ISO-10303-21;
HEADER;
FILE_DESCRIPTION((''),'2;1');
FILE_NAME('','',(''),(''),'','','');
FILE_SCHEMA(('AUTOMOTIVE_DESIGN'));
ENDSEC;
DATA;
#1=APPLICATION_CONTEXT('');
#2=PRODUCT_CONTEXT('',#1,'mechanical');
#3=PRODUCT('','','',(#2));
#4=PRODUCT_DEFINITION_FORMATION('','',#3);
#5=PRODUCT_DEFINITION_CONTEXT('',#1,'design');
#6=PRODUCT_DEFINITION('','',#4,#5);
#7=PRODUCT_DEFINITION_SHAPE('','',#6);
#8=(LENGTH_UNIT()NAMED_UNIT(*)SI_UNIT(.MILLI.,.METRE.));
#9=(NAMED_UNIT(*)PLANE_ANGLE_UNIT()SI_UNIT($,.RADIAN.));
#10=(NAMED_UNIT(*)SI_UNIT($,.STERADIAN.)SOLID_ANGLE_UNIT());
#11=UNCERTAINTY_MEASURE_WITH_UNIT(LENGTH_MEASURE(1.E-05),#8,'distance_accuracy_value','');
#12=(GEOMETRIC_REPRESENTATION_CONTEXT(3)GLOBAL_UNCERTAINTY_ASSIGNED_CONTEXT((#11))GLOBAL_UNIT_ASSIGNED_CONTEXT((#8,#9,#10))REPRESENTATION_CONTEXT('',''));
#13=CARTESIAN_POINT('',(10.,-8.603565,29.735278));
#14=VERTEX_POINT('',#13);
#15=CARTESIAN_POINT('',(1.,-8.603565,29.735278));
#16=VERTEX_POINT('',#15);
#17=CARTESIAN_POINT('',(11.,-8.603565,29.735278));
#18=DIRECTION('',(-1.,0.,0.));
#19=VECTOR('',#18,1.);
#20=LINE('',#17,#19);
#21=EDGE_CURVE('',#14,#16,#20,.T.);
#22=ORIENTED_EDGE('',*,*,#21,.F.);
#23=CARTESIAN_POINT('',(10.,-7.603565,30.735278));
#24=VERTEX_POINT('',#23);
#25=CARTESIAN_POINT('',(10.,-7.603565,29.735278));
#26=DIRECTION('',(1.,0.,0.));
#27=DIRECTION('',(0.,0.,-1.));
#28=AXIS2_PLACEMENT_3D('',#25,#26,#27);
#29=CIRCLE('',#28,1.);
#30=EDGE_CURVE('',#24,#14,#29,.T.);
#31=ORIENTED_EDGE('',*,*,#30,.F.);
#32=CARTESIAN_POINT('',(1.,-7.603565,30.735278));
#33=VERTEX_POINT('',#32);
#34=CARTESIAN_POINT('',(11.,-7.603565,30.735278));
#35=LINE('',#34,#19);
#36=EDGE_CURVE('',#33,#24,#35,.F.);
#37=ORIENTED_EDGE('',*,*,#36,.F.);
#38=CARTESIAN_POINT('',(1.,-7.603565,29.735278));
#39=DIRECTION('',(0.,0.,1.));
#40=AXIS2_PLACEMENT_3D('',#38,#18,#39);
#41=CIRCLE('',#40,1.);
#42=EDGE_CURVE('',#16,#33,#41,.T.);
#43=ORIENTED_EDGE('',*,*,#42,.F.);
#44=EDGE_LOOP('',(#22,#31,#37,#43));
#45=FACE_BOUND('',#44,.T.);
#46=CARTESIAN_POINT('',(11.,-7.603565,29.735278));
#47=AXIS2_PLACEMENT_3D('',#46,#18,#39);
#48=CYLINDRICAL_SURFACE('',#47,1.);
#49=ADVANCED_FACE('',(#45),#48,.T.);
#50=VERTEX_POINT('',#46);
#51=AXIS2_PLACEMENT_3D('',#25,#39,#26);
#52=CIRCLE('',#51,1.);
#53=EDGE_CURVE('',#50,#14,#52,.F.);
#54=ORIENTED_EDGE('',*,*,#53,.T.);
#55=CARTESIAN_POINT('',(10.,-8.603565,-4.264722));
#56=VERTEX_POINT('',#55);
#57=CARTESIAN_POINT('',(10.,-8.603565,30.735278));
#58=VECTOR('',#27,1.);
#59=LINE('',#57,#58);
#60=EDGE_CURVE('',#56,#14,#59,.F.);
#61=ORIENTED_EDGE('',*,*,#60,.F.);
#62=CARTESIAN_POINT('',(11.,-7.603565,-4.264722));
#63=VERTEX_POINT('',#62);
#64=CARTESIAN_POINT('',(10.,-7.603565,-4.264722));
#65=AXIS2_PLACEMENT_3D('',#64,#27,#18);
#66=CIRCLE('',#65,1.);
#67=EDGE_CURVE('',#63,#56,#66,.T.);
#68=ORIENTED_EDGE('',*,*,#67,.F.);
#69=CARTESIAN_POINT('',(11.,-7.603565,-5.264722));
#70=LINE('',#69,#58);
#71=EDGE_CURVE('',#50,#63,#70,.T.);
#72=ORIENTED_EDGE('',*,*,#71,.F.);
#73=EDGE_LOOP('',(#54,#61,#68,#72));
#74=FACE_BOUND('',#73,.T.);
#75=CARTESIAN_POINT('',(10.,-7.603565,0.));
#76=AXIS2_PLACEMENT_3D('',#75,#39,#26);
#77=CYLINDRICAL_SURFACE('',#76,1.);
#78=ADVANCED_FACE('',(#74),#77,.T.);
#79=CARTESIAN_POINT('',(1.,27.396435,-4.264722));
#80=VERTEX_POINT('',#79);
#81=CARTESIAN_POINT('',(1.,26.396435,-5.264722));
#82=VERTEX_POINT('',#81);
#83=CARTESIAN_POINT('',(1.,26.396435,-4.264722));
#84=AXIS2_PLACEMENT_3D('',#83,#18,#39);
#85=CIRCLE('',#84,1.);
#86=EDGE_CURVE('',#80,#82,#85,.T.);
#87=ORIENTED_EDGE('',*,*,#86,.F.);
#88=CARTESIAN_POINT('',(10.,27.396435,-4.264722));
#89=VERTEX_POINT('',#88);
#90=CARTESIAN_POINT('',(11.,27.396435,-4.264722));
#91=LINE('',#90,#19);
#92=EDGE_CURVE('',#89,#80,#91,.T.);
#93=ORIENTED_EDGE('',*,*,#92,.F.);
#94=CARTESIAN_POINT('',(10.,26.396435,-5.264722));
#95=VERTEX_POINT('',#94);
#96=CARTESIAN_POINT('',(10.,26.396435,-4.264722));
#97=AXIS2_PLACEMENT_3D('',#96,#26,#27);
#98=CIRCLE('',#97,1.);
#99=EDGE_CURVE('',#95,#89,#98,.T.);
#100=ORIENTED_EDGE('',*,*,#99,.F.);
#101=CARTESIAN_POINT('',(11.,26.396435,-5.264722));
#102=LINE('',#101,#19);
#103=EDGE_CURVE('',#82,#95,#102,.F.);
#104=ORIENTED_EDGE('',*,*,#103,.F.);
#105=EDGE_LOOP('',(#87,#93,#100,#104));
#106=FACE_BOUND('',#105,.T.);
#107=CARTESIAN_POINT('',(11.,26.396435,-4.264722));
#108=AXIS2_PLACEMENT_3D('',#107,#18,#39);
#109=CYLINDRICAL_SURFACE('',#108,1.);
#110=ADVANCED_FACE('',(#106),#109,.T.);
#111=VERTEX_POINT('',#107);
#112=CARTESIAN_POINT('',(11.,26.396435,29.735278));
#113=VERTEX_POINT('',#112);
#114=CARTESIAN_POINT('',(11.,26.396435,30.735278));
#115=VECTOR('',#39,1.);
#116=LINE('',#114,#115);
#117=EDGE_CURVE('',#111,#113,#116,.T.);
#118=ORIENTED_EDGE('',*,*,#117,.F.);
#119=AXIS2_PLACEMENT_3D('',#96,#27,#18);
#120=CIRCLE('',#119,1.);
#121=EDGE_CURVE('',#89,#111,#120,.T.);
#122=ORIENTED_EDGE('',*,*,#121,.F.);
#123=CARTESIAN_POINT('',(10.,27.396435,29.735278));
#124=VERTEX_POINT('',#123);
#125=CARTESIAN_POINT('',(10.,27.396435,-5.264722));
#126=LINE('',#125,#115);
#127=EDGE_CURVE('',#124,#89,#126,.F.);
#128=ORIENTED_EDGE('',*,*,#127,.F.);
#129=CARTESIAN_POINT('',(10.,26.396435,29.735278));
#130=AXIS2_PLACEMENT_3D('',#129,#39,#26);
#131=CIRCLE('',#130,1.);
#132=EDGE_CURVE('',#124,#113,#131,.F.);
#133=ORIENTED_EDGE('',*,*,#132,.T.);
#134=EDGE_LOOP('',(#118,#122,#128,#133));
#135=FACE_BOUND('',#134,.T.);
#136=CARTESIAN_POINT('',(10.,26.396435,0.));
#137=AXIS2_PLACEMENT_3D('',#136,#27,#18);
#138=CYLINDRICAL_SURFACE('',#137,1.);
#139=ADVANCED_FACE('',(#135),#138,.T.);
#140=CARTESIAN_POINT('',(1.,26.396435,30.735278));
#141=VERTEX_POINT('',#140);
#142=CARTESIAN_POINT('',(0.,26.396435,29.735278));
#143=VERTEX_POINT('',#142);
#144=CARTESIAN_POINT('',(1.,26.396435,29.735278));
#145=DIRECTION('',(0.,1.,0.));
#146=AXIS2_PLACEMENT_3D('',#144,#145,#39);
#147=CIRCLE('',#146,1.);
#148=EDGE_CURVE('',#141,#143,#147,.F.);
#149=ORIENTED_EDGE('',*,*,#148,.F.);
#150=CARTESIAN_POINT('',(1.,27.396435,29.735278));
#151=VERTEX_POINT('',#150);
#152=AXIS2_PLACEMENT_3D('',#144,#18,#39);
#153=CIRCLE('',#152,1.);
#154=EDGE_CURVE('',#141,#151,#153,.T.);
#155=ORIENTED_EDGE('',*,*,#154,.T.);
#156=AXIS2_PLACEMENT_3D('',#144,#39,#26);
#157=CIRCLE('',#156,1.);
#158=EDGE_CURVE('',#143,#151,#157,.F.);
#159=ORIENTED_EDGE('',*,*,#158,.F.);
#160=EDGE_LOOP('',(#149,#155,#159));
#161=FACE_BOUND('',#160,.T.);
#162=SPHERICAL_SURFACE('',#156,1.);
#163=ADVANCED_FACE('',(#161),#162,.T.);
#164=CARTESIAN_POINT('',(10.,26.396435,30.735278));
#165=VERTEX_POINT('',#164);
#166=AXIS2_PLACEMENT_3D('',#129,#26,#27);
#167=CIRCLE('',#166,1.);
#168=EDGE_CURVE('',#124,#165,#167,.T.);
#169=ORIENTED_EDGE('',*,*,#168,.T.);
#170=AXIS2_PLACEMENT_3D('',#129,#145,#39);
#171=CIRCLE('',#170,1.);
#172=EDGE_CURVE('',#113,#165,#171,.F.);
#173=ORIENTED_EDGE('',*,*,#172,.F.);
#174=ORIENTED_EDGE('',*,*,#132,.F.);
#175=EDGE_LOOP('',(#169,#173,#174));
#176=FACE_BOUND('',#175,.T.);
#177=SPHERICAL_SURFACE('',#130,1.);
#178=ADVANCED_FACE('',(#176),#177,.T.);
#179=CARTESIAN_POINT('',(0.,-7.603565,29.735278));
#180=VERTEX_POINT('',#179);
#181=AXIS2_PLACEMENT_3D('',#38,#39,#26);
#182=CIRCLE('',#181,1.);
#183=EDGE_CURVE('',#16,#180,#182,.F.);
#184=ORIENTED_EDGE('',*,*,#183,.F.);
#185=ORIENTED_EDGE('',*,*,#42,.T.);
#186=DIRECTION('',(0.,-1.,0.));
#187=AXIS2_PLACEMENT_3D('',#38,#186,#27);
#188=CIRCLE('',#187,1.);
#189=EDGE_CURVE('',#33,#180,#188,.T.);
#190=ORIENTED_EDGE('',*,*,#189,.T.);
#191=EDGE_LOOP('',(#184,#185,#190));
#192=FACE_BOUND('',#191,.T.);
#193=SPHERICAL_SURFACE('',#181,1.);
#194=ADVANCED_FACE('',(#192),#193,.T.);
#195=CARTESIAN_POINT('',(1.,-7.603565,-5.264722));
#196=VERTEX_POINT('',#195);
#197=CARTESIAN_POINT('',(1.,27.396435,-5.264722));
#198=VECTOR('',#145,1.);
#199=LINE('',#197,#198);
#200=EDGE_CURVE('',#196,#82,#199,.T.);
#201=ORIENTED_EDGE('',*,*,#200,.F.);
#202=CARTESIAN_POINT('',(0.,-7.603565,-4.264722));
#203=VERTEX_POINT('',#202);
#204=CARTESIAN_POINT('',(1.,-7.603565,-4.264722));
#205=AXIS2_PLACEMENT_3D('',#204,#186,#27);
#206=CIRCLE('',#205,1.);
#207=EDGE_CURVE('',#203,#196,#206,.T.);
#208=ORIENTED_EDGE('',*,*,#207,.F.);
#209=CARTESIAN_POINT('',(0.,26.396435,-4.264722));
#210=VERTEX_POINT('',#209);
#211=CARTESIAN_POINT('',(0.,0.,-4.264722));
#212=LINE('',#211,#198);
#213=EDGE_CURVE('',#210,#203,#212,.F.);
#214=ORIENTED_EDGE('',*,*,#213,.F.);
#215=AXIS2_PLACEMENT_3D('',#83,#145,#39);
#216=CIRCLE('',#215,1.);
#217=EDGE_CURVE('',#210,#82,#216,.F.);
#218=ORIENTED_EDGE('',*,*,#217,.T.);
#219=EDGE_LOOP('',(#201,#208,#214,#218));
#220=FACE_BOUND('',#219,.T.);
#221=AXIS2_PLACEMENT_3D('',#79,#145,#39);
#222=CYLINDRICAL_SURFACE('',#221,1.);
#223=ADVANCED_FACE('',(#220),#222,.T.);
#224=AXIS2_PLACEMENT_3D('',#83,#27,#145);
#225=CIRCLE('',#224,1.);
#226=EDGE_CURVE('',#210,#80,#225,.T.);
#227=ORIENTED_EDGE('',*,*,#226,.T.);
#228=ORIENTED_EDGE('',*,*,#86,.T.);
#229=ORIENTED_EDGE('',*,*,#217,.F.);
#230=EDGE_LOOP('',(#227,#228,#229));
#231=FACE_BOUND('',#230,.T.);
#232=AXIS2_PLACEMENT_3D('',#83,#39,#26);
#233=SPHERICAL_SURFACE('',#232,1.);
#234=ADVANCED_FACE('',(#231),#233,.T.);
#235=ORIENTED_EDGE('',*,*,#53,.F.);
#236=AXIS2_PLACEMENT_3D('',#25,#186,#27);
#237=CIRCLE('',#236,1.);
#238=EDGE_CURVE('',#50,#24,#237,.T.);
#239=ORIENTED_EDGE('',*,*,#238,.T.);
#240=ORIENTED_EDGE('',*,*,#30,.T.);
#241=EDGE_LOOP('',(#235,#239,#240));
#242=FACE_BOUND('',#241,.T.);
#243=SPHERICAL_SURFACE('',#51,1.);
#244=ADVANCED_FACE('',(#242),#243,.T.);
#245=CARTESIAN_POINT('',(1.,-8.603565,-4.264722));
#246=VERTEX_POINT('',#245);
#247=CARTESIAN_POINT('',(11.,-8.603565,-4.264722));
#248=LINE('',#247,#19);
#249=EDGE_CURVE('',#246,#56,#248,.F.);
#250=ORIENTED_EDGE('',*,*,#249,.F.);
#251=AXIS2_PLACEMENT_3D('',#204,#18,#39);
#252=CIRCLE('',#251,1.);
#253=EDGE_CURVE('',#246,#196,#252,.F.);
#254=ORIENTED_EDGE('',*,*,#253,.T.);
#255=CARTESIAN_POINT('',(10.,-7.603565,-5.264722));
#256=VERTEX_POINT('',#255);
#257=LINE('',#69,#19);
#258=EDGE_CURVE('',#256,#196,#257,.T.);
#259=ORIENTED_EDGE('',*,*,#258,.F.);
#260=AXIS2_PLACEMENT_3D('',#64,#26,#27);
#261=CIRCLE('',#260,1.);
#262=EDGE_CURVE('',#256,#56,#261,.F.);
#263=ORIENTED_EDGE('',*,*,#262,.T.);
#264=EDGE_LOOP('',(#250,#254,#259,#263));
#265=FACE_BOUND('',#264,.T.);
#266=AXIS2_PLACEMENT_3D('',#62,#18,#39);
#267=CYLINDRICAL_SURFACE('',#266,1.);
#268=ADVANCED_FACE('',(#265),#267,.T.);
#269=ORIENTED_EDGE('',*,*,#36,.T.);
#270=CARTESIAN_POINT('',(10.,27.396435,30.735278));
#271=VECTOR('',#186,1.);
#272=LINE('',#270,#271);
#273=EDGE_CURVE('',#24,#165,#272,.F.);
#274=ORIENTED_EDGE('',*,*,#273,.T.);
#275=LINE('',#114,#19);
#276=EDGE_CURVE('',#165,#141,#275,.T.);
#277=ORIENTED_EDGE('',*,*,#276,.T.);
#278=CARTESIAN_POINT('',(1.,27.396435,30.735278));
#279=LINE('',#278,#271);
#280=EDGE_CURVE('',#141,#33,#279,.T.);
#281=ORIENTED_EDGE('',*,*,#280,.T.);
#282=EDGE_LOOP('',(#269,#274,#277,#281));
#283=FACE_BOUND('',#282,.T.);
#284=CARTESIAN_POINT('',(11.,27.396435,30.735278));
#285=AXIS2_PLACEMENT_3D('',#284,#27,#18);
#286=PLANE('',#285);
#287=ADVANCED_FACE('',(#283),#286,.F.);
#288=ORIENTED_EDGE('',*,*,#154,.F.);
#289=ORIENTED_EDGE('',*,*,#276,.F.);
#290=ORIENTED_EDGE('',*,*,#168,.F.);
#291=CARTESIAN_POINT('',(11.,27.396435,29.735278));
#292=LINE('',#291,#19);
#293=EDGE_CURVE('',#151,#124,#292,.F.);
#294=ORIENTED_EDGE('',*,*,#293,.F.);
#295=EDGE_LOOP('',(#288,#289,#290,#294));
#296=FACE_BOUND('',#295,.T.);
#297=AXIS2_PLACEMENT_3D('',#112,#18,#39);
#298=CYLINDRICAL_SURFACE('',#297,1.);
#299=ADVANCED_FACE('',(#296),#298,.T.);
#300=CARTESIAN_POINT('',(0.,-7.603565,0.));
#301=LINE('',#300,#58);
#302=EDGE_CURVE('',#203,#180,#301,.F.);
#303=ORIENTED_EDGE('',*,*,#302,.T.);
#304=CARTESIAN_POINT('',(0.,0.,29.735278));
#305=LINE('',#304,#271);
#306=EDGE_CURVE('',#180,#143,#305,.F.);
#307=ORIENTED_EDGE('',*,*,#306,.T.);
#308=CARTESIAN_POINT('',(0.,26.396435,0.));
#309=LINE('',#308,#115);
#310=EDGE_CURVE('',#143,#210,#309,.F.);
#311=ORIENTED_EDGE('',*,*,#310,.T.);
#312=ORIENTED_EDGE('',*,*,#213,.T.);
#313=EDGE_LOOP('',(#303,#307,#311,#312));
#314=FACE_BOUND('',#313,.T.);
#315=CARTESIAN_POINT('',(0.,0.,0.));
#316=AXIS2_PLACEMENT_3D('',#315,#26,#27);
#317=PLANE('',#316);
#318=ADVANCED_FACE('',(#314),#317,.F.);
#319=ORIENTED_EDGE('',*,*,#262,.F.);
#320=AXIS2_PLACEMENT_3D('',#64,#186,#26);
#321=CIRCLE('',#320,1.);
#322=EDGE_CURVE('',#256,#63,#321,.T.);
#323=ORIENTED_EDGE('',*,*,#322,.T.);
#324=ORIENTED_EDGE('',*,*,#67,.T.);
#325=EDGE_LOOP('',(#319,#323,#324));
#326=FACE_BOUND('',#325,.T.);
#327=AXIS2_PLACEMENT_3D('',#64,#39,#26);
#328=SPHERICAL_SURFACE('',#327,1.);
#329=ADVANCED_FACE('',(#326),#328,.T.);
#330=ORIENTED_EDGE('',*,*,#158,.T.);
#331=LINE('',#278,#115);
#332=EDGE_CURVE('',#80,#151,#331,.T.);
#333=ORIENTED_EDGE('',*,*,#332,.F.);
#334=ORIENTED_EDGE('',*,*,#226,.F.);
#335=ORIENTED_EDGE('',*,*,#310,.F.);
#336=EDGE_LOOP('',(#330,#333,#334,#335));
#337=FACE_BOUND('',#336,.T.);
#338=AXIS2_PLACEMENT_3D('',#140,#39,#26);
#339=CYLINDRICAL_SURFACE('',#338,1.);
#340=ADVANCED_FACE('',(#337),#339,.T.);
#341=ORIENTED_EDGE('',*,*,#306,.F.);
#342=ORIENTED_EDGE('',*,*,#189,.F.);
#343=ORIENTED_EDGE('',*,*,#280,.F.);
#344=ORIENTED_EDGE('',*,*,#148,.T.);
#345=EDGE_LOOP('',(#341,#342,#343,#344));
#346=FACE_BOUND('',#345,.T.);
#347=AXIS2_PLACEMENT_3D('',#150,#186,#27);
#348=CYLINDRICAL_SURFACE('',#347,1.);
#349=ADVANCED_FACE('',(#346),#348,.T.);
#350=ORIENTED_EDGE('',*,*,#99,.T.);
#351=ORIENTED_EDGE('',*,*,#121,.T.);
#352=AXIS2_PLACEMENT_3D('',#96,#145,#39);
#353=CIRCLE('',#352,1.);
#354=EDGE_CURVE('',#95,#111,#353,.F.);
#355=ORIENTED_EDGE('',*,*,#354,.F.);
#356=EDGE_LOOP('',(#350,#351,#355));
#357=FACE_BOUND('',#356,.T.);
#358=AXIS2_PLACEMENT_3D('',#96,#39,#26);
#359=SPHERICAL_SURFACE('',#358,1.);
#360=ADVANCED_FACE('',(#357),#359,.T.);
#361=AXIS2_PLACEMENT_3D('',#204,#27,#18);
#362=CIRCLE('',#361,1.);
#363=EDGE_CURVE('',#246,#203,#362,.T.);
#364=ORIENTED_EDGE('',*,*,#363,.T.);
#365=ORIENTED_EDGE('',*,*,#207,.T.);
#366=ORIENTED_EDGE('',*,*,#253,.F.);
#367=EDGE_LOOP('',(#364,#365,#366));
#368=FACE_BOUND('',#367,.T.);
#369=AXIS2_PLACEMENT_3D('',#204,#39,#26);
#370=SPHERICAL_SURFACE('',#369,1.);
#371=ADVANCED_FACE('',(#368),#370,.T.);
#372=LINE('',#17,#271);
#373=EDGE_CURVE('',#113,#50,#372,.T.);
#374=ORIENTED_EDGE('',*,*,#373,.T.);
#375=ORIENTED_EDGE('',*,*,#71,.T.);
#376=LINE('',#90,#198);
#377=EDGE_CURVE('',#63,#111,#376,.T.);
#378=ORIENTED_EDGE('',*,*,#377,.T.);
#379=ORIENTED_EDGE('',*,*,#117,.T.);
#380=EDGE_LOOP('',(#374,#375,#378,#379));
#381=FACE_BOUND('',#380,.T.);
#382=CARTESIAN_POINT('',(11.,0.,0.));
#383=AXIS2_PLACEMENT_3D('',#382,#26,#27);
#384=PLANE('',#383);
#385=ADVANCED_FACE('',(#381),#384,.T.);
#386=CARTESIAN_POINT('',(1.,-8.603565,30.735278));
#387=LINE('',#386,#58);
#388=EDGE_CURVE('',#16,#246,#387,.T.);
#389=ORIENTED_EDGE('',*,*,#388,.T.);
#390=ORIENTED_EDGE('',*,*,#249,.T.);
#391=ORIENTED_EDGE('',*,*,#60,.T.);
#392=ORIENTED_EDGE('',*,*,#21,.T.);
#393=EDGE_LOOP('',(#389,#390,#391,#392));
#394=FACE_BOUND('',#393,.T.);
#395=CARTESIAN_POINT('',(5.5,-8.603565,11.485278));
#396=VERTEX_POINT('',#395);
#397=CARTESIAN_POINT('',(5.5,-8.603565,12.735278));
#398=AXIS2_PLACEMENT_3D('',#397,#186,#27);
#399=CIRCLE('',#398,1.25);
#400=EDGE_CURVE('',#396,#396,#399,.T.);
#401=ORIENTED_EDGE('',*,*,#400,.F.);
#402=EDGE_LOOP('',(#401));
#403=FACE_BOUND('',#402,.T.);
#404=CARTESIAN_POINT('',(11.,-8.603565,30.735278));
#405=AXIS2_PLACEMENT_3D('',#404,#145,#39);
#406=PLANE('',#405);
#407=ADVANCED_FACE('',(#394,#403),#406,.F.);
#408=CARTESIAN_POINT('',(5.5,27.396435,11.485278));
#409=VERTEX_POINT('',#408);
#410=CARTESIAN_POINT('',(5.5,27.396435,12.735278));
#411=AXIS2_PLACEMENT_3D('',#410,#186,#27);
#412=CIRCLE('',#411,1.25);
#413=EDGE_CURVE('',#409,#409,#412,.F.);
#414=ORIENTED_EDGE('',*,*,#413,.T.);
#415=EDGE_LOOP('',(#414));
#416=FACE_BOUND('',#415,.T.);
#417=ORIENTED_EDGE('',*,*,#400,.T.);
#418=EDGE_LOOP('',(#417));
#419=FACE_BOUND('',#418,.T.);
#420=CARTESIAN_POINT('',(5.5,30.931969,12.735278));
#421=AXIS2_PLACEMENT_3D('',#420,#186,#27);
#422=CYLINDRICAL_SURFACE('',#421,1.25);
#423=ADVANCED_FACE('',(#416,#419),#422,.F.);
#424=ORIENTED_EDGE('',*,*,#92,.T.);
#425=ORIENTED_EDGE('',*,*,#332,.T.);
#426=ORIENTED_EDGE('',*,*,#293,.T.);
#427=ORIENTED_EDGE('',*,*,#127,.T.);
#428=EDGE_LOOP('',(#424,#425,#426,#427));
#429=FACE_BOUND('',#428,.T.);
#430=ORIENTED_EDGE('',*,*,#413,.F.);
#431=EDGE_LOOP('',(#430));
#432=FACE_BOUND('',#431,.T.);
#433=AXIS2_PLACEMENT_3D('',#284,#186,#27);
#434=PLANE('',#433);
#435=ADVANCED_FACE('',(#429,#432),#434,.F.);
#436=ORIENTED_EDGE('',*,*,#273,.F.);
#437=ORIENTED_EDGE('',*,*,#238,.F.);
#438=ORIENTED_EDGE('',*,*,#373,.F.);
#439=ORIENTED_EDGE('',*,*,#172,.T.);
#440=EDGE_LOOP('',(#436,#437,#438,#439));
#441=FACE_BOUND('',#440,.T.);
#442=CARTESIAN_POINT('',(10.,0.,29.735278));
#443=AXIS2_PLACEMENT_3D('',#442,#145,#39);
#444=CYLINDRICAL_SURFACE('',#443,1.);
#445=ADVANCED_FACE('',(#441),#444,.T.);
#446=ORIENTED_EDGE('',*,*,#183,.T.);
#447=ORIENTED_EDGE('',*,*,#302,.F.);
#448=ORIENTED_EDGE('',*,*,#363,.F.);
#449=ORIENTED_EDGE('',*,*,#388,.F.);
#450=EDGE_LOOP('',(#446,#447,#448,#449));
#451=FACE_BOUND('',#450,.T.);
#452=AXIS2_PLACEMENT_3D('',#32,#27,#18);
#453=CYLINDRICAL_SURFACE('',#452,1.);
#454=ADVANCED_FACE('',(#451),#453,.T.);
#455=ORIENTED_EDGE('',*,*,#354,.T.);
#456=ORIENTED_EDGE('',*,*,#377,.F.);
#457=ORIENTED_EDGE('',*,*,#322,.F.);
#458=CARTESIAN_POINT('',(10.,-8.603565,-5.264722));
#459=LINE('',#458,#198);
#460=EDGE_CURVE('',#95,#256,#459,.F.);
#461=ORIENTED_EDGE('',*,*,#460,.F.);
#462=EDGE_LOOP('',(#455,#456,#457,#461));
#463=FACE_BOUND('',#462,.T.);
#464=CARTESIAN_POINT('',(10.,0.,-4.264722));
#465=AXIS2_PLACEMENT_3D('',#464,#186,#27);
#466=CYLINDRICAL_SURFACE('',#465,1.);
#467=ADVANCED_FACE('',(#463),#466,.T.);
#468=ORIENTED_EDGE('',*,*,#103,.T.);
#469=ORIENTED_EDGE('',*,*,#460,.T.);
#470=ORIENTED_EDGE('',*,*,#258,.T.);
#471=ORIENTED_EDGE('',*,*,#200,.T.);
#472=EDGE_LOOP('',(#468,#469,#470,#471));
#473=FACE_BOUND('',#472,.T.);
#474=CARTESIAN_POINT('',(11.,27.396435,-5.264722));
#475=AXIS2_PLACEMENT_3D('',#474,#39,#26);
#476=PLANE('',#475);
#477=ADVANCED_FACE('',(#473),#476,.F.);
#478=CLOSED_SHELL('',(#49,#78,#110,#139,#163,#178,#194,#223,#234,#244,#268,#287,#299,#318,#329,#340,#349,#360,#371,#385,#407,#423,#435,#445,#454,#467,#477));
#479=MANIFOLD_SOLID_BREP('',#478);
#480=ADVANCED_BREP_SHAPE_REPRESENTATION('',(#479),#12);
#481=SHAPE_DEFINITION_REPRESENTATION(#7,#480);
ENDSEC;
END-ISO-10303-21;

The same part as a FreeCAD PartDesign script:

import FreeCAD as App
import Part
import Sketcher

V = App.Vector

doc = App.newDocument("Part")
params = doc.addObject("Spreadsheet::Sheet", "Params")
for row, (alias, value) in enumerate([
    ("sketch1_width", "36 mm"),
    ("pad1_length", "11 mm"),
    ("fillet_radius", "1 mm"),
    ("sketch2_diameter", "2.5 mm"),
    ("pocket1_length", "36 mm"),
], start=1):
    params.set(f"A{row}", alias)
    params.set(f"B{row}", "=" + value)
    params.setAlias(f"B{row}", alias)

body = doc.addObject("PartDesign::Body", "Body")

# Sketch on YZ plane
sketch1 = body.newObject("Sketcher::SketchObject", "Sketch")
sketch1.AttachmentSupport = (doc.getObject("YZ_Plane"), [""])
sketch1.MapMode = "FlatFace"
sketch1.addGeometry([
    Part.LineSegment(V(27, 31, 0), V(-9, 31, 0)),
    Part.LineSegment(V(-9, 31, 0), V(-9, -5, 0)),
    Part.LineSegment(V(-9, -5, 0), V(27, -5, 0)),
    Part.LineSegment(V(27, -5, 0), V(27, 31, 0)),
], False)
sketch1.addConstraint([
    Sketcher.Constraint("Coincident", 0, 2, 1, 1),
    Sketcher.Constraint("Coincident", 1, 2, 2, 1),
    Sketcher.Constraint("Coincident", 2, 2, 3, 1),
    Sketcher.Constraint("Coincident", 3, 2, 0, 1),
    Sketcher.Constraint("Horizontal", 0),
    Sketcher.Constraint("Vertical", 1),
    Sketcher.Constraint("Horizontal", 2),
    Sketcher.Constraint("Vertical", 3),
    Sketcher.Constraint("Equal", 2, 1),
    Sketcher.Constraint("DistanceX", 0, 2, 0, 1, 36.0),
    Sketcher.Constraint("DistanceY", -1, 1, 0, 2, 30.735278),
    Sketcher.Constraint("DistanceX", 0, 2, -1, 1, 8.603565),
])
sketch1.setExpression("Constraints[9]", "Params.sketch1_width")
pad1 = body.newObject("PartDesign::Pad", "Pad")
pad1.Profile = sketch1
pad1.setExpression("Length", "Params.pad1_length")
doc.recompute()

fillet = body.newObject("PartDesign::Fillet", "Fillet")
fillet.Base = (pad1, ["Edge1"])
fillet.UseAllEdges = True
fillet.setExpression("Radius", "Params.fillet_radius")

# Sketch on XZ plane
sketch2 = body.newObject("Sketcher::SketchObject", "Sketch001")
sketch2.AttachmentSupport = (doc.getObject("XZ_Plane"), [""])
sketch2.MapMode = "FlatFace"
sketch2.AttachmentOffset = App.Placement(V(0, 0, 8.603565), App.Rotation())
sketch2.addGeometry(Part.Circle(V(5.5, 12.7, 0), V(0, 0, 1), 1.2), False)
sketch2.addConstraint([
    Sketcher.Constraint("Diameter", 0, 2.5),
    Sketcher.Constraint("DistanceX", -1, 1, 0, 3, 5.5),
    Sketcher.Constraint("DistanceY", -1, 1, 0, 3, 12.735278),
])
sketch2.setExpression("Constraints[0]", "Params.sketch2_diameter")
pocket1 = body.newObject("PartDesign::Pocket", "Pocket")
pocket1.Profile = sketch2
pocket1.setExpression("Length", "Params.pocket1_length")

doc.recompute()
